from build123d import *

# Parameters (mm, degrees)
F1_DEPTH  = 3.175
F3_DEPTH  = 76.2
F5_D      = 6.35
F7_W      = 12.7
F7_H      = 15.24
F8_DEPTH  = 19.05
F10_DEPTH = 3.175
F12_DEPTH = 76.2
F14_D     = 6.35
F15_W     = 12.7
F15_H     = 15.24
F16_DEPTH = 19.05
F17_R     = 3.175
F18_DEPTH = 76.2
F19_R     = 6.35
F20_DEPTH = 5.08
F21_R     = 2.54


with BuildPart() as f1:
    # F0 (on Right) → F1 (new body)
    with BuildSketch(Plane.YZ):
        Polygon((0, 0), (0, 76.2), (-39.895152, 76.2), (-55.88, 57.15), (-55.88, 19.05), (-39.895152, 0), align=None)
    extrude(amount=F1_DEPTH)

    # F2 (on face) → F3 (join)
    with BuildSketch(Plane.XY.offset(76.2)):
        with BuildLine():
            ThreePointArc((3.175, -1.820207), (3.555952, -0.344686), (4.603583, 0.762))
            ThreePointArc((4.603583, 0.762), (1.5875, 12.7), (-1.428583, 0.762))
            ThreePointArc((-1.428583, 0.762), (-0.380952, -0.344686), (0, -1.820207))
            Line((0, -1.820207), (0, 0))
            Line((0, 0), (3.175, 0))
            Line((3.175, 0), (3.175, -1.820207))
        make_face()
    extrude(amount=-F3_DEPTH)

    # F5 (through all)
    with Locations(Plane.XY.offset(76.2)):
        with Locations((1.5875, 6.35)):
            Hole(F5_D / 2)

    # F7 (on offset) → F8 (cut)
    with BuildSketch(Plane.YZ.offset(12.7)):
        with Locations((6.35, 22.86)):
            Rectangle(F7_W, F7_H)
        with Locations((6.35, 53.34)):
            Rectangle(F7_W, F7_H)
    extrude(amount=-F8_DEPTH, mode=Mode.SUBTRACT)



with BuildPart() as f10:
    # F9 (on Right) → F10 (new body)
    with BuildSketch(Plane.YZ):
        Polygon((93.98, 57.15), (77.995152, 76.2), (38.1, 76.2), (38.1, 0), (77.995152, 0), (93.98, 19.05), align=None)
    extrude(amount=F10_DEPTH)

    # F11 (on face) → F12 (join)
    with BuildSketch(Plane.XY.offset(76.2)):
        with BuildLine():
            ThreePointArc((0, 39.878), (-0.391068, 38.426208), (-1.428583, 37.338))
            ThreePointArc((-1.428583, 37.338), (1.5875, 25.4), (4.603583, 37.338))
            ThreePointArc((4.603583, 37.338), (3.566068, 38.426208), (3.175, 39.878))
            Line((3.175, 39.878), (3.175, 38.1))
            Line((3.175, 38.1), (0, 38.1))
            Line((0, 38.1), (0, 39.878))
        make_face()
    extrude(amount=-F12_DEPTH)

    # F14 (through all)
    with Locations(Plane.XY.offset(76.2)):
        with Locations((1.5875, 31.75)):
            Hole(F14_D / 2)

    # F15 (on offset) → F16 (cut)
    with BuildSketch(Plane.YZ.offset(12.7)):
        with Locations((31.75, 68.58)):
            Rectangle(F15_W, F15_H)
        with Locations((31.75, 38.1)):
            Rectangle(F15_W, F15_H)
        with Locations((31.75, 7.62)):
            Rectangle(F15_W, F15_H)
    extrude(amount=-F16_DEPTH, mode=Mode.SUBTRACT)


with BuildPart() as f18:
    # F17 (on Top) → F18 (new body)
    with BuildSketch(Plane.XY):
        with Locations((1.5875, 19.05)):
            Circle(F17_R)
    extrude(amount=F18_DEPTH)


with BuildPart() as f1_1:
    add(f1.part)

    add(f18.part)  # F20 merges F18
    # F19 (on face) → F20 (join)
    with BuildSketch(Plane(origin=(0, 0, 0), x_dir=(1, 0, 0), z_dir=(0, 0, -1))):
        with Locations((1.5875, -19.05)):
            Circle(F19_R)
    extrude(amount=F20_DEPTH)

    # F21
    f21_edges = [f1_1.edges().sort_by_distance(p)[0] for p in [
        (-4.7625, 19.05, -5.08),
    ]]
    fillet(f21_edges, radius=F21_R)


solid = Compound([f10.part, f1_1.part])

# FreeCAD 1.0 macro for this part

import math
import FreeCAD as App
import Part
import Sketcher
Q = App.Units.Quantity


def edges_at(feature, points):
    """Names of the edges that pass closest to the given points."""
    edges = feature.Shape.Edges
    near = lambda p: min(range(len(edges)), key=lambda i: edges[i].distToShape(Part.Vertex(*p))[0])
    return sorted({f"Edge{near(p) + 1}" for p in points})


def add_polygon(sketch, points):
    """Adds a closed chain of lines whose ends are joined by coincident constraints."""
    first, n = sketch.GeometryCount, len(points)
    for a, b in zip(points, points[1:] + points[:1]):
        sketch.addGeometry(Part.LineSegment(App.Vector(*a, 0), App.Vector(*b, 0)), False)
    for i in range(n):
        sketch.addConstraint(Sketcher.Constraint("Coincident", first + i, 2, first + (i + 1) % n, 1))

doc = App.newDocument("Part")
body = doc.addObject("PartDesign::Body", "Body")

# Sketch on YZ plane
sketch1 = body.newObject("Sketcher::SketchObject", "Sketch")
sketch1.AttachmentSupport = (doc.getObject("YZ_Plane"), [""])
sketch1.MapMode = "FlatFace"
add_polygon(sketch1, [(0, 0), (0, 76), (-40, 76), (-56, 57), (-56, 19), (-40, 0)])  # lines 0-5
sketch1.addConstraint([
    Sketcher.Constraint("Vertical", 0),
    Sketcher.Constraint("Horizontal", 1),
    Sketcher.Constraint("Vertical", 3),
    Sketcher.Constraint("Horizontal", 5),
    Sketcher.Constraint("Coincident", 5, 2, -1, 1),
    Sketcher.Constraint("Vertical", 1, 2, 4, 2),
    Sketcher.Constraint("Equal", 2, 4),
    Sketcher.Constraint("DistanceY", 0, 1, 0, 2, Q("3 in")),
    Sketcher.Constraint("DistanceY", 3, 2, 3, 1, Q("1.5 in")),
    Sketcher.Constraint("Angle", 2, Q("-130 deg")),
    Sketcher.Constraint("DistanceX", 2, 2, -1, 1, Q("2.2 in")),
])
pad1 = body.newObject("PartDesign::Pad", "Pad")
pad1.Profile = sketch1
pad1.Length = Q("0.125 in")

# Sketch on XY plane
sketch2 = body.newObject("Sketcher::SketchObject", "Sketch001")
sketch2.AttachmentSupport = (doc.getObject("XY_Plane"), [""])
sketch2.MapMode = "FlatFace"
sketch2.AttachmentOffset = App.Placement(App.Vector(0, 0, 3 * 25.4), App.Rotation())
sketch2.addGeometry([
    Part.ArcOfCircle(Part.Circle(App.Vector(6.2, -1.8, 0), App.Vector(0, 0, 1), 3), math.radians(122), math.radians(180)),  # 0
    Part.ArcOfCircle(Part.Circle(App.Vector(1.6, 6.3, 0), App.Vector(0, 0, 1), 6.4), math.radians(-62), math.radians(242)),  # 1
    Part.ArcOfCircle(Part.Circle(App.Vector(-3, -1.8, 0), App.Vector(0, 0, 1), 3), math.radians(0), math.radians(58)),  # 2
    Part.LineSegment(App.Vector(0, -1.8, 0), App.Vector(0, 0, 0)),  # 3
    Part.LineSegment(App.Vector(0, 0, 0), App.Vector(3.2, 0, 0)),  # 4
    Part.LineSegment(App.Vector(3.2, 0, 0), App.Vector(3.2, -1.8, 0)),  # 5
], False)
sketch2.addConstraint([
    Sketcher.Constraint("Coincident", 0, 1, 1, 1),
    Sketcher.Constraint("Coincident", 1, 2, 2, 2),
    Sketcher.Constraint("Tangent", 2, 1, 3, 1),
    Sketcher.Constraint("Coincident", 3, 2, 4, 1),
    Sketcher.Constraint("Coincident", 4, 2, 5, 1),
    Sketcher.Constraint("Tangent", 5, 2, 0, 2),
    Sketcher.Constraint("Vertical", 3),
    Sketcher.Constraint("Horizontal", 4),
    Sketcher.Constraint("Vertical", 5),
    Sketcher.Constraint("Coincident", 3, 2, -1, 1),
    Sketcher.Constraint("Equal", 0, 2),
    Sketcher.Constraint("Horizontal", 0, 3, 2, 3),
    Sketcher.Constraint("Horizontal", 0, 1, 1, 2),
    Sketcher.Constraint("Radius", 0, Q("0.1199999 in")),
    Sketcher.Constraint("Radius", 1, Q("0.25 in")),
    Sketcher.Constraint("DistanceX", 4, 1, 4, 2, Q("0.125 in")),
    Sketcher.Constraint("DistanceY", -1, 1, 1, 3, Q("0.25 in")),
    Sketcher.Constraint("DistanceY", -1, 1, 0, 1, Q("0.03 in")),
])
pad2 = body.newObject("PartDesign::Pad", "Pad001")
pad2.Profile = sketch2
pad2.Length = Q("3 in")
pad2.Reversed = True

# Sketch on XY plane
sketch3 = body.newObject("Sketcher::SketchObject", "Sketch002")
sketch3.AttachmentSupport = (doc.getObject("XY_Plane"), [""])
sketch3.MapMode = "FlatFace"
sketch3.AttachmentOffset = App.Placement(App.Vector(0, 0, 3 * 25.4), App.Rotation())
sketch3.addGeometry(Part.Circle(App.Vector(1.6, 6.3, 0), App.Vector(0, 0, 1), 3.2), False)
sketch3.addConstraint([
    Sketcher.Constraint("Diameter", 0, Q("0.25 in")),
    Sketcher.Constraint("DistanceY", -1, 1, 0, 3, Q("0.25 in")),
    Sketcher.Constraint("DistanceX", -1, 1, 0, 3, Q("0.0625 in")),
])
doc.recompute()
hole = body.newObject("PartDesign::Hole", "Hole")
hole.Profile = sketch3
hole.ThreadType = "None"
hole.Diameter = Q("0.25 in")
hole.DepthType = "ThroughAll"

# Sketch on YZ plane
sketch4 = body.newObject("Sketcher::SketchObject", "Sketch003")
sketch4.AttachmentSupport = (doc.getObject("YZ_Plane"), [""])
sketch4.MapMode = "FlatFace"
sketch4.AttachmentOffset = App.Placement(App.Vector(0, 0, 0.5 * 25.4), App.Rotation())
add_polygon(sketch4, [(0, 30), (0, 15), (13, 15), (13, 30)])  # lines 0-3
add_polygon(sketch4, [(0, 61), (0, 46), (13, 46), (13, 61)])  # lines 4-7
sketch4.addConstraint([
    Sketcher.Constraint("Vertical", 0),
    Sketcher.Constraint("Horizontal", 1),
    Sketcher.Constraint("Vertical", 2),
    Sketcher.Constraint("Horizontal", 3),
    Sketcher.Constraint("Vertical", 4),
    Sketcher.Constraint("Horizontal", 5),
    Sketcher.Constraint("Vertical", 6),
    Sketcher.Constraint("Horizontal", 7),
    Sketcher.Constraint("PointOnObject", 0, 2, -2),
    Sketcher.Constraint("PointOnObject", 4, 2, -2),
    Sketcher.Constraint("Vertical", 2, 2, 5, 2),
    Sketcher.Constraint("Equal", 2, 4),
    Sketcher.Constraint("DistanceX", 1, 1, 1, 2, Q("0.5 in")),
    Sketcher.Constraint("DistanceY", 0, 2, 0, 1, Q("0.6 in")),
    Sketcher.Constraint("DistanceY", -1, 1, 0, 2, Q("0.6 in")),
    Sketcher.Constraint("DistanceY", -1, 1, 4, 2, Q("1.8 in")),
])
pocket1 = body.newObject("PartDesign::Pocket", "Pocket")
pocket1.Profile = sketch4
pocket1.Length = Q("0.75 in")
body2 = doc.addObject("PartDesign::Body", "Body001")

# Sketch on YZ plane
sketch5 = body2.newObject("Sketcher::SketchObject", "Sketch004")
sketch5.AttachmentSupport = (doc.getObject("YZ_Plane001"), [""])
sketch5.MapMode = "FlatFace"
add_polygon(sketch5, [(94, 57), (78, 76), (38, 76), (38, 0), (78, 0), (94, 19)])  # lines 0-5
sketch5.addConstraint([
    Sketcher.Constraint("Horizontal", 1),
    Sketcher.Constraint("Vertical", 2),
    Sketcher.Constraint("Horizontal", 3),
    Sketcher.Constraint("Vertical", 5),
    Sketcher.Constraint("PointOnObject", 2, 2, -1),
    Sketcher.Constraint("Vertical", 0, 2, 3, 2),
    Sketcher.Constraint("Equal", 0, 4),
    Sketcher.Constraint("DistanceY", 2, 2, 2, 1, Q("3 in")),
    Sketcher.Constraint("DistanceY", 5, 1, 5, 2, Q("1.5 in")),
    Sketcher.Constraint("Angle", 0, Q("130 deg")),
    Sketcher.Constraint("DistanceX", -1, 1, 1, 2, Q("1.5 in")),
    Sketcher.Constraint("DistanceX", -1, 1, 4, 2, Q("3.7 in")),
])
pad3 = body2.newObject("PartDesign::Pad", "Pad002")
pad3.Profile = sketch5
pad3.Length = Q("0.125 in")

# Sketch on XY plane
sketch6 = body2.newObject("Sketcher::SketchObject", "Sketch005")
sketch6.AttachmentSupport = (doc.getObject("XY_Plane001"), [""])
sketch6.MapMode = "FlatFace"
sketch6.AttachmentOffset = App.Placement(App.Vector(0, 0, 3 * 25.4), App.Rotation())
sketch6.addGeometry([
    Part.ArcOfCircle(Part.Circle(App.Vector(-3, 39.9, 0), App.Vector(0, 0, 1), 3), math.radians(-58), math.radians(-1)),  # 0
    Part.ArcOfCircle(Part.Circle(App.Vector(1.6, 31.8, 0), App.Vector(0, 0, 1), 6.4), math.radians(118), math.radians(422)),  # 1
    Part.ArcOfCircle(Part.Circle(App.Vector(6.2, 39.9, 0), App.Vector(0, 0, 1), 3), math.radians(-179), math.radians(-122)),  # 2
    Part.LineSegment(App.Vector(3.2, 39.9, 0), App.Vector(3.2, 38.1, 0)),  # 3
    Part.LineSegment(App.Vector(3.2, 38.1, 0), App.Vector(0, 38.1, 0)),  # 4
    Part.LineSegment(App.Vector(0, 38.1, 0), App.Vector(0, 39.9, 0)),  # 5
], False)
sketch6.addConstraint([
    Sketcher.Constraint("Coincident", 0, 1, 1, 1),
    Sketcher.Constraint("Coincident", 1, 2, 2, 2),
    Sketcher.Constraint("Coincident", 2, 1, 3, 1),
    Sketcher.Constraint("Coincident", 3, 2, 4, 1),
    Sketcher.Constraint("Coincident", 4, 2, 5, 1),
    Sketcher.Constraint("Coincident", 5, 2, 0, 2),
    Sketcher.Constraint("Vertical", 3),
    Sketcher.Constraint("Horizontal", 4),
    Sketcher.Constraint("Vertical", 5),
    Sketcher.Constraint("Equal", 0, 2),
    Sketcher.Constraint("PointOnObject", 4, 2, -2),
    Sketcher.Constraint("Horizontal", 0, 3, 2, 3),
    Sketcher.Constraint("Horizontal", 0, 1, 1, 2),
    Sketcher.Constraint("Horizontal", 2, 1, 5, 2),
    Sketcher.Constraint("Radius", 0, Q("0.1199999 in")),
    Sketcher.Constraint("Radius", 1, Q("0.25 in")),
    Sketcher.Constraint("DistanceY", 3, 2, 3, 1, Q("0.07 in")),
    Sketcher.Constraint("DistanceY", -1, 1, 3, 2, Q("1.5 in")),
    Sketcher.Constraint("DistanceY", 1, 2, 2, 1, Q("0.1 in")),
    Sketcher.Constraint("DistanceX", 4, 2, 4, 1, Q("0.125 in")),
    Sketcher.Constraint("DistanceY", -1, 1, 1, 3, Q("1.25 in")),
])
pad4 = body2.newObject("PartDesign::Pad", "Pad003")
pad4.Profile = sketch6
pad4.Length = Q("3 in")
pad4.Reversed = True

# Sketch on XY plane
sketch7 = body2.newObject("Sketcher::SketchObject", "Sketch006")
sketch7.AttachmentSupport = (doc.getObject("XY_Plane001"), [""])
sketch7.MapMode = "FlatFace"
sketch7.AttachmentOffset = App.Placement(App.Vector(0, 0, 3 * 25.4), App.Rotation())
sketch7.addGeometry(Part.Circle(App.Vector(1.6, 31.8, 0), App.Vector(0, 0, 1), 3.2), False)
sketch7.addConstraint([
    Sketcher.Constraint("Diameter", 0, Q("0.25 in")),
    Sketcher.Constraint("DistanceY", -1, 1, 0, 3, Q("1.25 in")),
    Sketcher.Constraint("DistanceX", -1, 1, 0, 3, Q("0.0625 in")),
])
doc.recompute()
hole2 = body2.newObject("PartDesign::Hole", "Hole001")
hole2.Profile = sketch7
hole2.ThreadType = "None"
hole2.Diameter = Q("0.25 in")
hole2.DepthType = "ThroughAll"

# Sketch on YZ plane
sketch8 = body2.newObject("Sketcher::SketchObject", "Sketch007")
sketch8.AttachmentSupport = (doc.getObject("YZ_Plane001"), [""])
sketch8.MapMode = "FlatFace"
sketch8.AttachmentOffset = App.Placement(App.Vector(0, 0, 0.5 * 25.4), App.Rotation())
add_polygon(sketch8, [(25, 76), (25, 61), (38, 61), (38, 76)])  # lines 0-3
add_polygon(sketch8, [(25, 46), (25, 30), (38, 30), (38, 46)])  # lines 4-7
add_polygon(sketch8, [(25, 15), (25, 0), (38, 0), (38, 15)])  # lines 8-11
sketch8.addConstraint([
    Sketcher.Constraint("Vertical", 0),
    Sketcher.Constraint("Horizontal", 1),
    Sketcher.Constraint("Vertical", 2),
    Sketcher.Constraint("Horizontal", 3),
    Sketcher.Constraint("Vertical", 4),
    Sketcher.Constraint("Horizontal", 5),
    Sketcher.Constraint("Vertical", 6),
    Sketcher.Constraint("Horizontal", 7),
    Sketcher.Constraint("Vertical", 8),
    Sketcher.Constraint("Horizontal", 9),
    Sketcher.Constraint("Vertical", 10),
    Sketcher.Constraint("Horizontal", 11),
    Sketcher.Constraint("PointOnObject", 8, 2, -1),
    Sketcher.Constraint("Vertical", 3, 2, 4, 2),
    Sketcher.Constraint("Vertical", 2, 2, 5, 2),
    Sketcher.Constraint("Vertical", 7, 2, 8, 2),
    Sketcher.Constraint("Vertical", 6, 2, 9, 2),
    Sketcher.Constraint("Equal", 2, 4),
    Sketcher.Constraint("Equal", 6, 8),
    Sketcher.Constraint("DistanceX", 1, 1, 1, 2, Q("0.5 in")),
    Sketcher.Constraint("DistanceY", 0, 2, 0, 1, Q("0.6 in")),
    Sketcher.Constraint("DistanceX", -1, 1, 0, 2, Q("1 in")),
    Sketcher.Constraint("DistanceY", -1, 1, 2, 2, Q("3 in")),
    Sketcher.Constraint("DistanceY", -1, 1, 4, 2, Q("1.2 in")),
])
pocket2 = body2.newObject("PartDesign::Pocket", "Pocket001")
pocket2.Profile = sketch8
pocket2.Length = Q("0.75 in")
body3 = doc.addObject("PartDesign::Body", "Body002")

# Sketch on XY plane
sketch9 = body3.newObject("Sketcher::SketchObject", "Sketch008")
sketch9.AttachmentSupport = (doc.getObject("XY_Plane002"), [""])
sketch9.MapMode = "FlatFace"
sketch9.addGeometry(Part.Circle(App.Vector(1.6, 19.1, 0), App.Vector(0, 0, 1), 3.2), False)
sketch9.addConstraint([
    Sketcher.Constraint("Diameter", 0, Q("0.25 in")),
    Sketcher.Constraint("DistanceY", -1, 1, 0, 3, Q("0.75 in")),
    Sketcher.Constraint("DistanceX", -1, 1, 0, 3, Q("0.0625 in")),
])
pad5 = body3.newObject("PartDesign::Pad", "Pad004")
pad5.Profile = sketch9
pad5.Length = Q("3 in")
body.AllowCompound = True
doc.recompute()

boolean = body.newObject("PartDesign::Boolean", "Boolean")
boolean.Type = "Fuse"
boolean.addObjects([body3])

# Sketch on XY plane
sketch10 = body.newObject("Sketcher::SketchObject", "Sketch009")
sketch10.AttachmentSupport = (doc.getObject("XY_Plane"), [""])
sketch10.MapMode = "FlatFace"
sketch10.addGeometry(Part.Circle(App.Vector(2, 19, 0), App.Vector(0, 0, 1), 6), False)
sketch10.addConstraint([
    Sketcher.Constraint("Diameter", 0, Q("0.5 in")),
    Sketcher.Constraint("DistanceY", -1, 1, 0, 3, Q("0.75 in")),
    Sketcher.Constraint("DistanceX", -1, 1, 0, 3, Q("0.0625 in")),
])
pad6 = body.newObject("PartDesign::Pad", "Pad005")
pad6.Profile = sketch10
pad6.Length = Q("0.2 in")
pad6.Reversed = True
doc.recompute()

fillet = body.newObject("PartDesign::Fillet", "Fillet")
fillet.Base = (pad6, edges_at(pad6, [(-4.763, 19.05, -5.08)]))
fillet.Radius = Q("0.1 in")

doc.recompute()
